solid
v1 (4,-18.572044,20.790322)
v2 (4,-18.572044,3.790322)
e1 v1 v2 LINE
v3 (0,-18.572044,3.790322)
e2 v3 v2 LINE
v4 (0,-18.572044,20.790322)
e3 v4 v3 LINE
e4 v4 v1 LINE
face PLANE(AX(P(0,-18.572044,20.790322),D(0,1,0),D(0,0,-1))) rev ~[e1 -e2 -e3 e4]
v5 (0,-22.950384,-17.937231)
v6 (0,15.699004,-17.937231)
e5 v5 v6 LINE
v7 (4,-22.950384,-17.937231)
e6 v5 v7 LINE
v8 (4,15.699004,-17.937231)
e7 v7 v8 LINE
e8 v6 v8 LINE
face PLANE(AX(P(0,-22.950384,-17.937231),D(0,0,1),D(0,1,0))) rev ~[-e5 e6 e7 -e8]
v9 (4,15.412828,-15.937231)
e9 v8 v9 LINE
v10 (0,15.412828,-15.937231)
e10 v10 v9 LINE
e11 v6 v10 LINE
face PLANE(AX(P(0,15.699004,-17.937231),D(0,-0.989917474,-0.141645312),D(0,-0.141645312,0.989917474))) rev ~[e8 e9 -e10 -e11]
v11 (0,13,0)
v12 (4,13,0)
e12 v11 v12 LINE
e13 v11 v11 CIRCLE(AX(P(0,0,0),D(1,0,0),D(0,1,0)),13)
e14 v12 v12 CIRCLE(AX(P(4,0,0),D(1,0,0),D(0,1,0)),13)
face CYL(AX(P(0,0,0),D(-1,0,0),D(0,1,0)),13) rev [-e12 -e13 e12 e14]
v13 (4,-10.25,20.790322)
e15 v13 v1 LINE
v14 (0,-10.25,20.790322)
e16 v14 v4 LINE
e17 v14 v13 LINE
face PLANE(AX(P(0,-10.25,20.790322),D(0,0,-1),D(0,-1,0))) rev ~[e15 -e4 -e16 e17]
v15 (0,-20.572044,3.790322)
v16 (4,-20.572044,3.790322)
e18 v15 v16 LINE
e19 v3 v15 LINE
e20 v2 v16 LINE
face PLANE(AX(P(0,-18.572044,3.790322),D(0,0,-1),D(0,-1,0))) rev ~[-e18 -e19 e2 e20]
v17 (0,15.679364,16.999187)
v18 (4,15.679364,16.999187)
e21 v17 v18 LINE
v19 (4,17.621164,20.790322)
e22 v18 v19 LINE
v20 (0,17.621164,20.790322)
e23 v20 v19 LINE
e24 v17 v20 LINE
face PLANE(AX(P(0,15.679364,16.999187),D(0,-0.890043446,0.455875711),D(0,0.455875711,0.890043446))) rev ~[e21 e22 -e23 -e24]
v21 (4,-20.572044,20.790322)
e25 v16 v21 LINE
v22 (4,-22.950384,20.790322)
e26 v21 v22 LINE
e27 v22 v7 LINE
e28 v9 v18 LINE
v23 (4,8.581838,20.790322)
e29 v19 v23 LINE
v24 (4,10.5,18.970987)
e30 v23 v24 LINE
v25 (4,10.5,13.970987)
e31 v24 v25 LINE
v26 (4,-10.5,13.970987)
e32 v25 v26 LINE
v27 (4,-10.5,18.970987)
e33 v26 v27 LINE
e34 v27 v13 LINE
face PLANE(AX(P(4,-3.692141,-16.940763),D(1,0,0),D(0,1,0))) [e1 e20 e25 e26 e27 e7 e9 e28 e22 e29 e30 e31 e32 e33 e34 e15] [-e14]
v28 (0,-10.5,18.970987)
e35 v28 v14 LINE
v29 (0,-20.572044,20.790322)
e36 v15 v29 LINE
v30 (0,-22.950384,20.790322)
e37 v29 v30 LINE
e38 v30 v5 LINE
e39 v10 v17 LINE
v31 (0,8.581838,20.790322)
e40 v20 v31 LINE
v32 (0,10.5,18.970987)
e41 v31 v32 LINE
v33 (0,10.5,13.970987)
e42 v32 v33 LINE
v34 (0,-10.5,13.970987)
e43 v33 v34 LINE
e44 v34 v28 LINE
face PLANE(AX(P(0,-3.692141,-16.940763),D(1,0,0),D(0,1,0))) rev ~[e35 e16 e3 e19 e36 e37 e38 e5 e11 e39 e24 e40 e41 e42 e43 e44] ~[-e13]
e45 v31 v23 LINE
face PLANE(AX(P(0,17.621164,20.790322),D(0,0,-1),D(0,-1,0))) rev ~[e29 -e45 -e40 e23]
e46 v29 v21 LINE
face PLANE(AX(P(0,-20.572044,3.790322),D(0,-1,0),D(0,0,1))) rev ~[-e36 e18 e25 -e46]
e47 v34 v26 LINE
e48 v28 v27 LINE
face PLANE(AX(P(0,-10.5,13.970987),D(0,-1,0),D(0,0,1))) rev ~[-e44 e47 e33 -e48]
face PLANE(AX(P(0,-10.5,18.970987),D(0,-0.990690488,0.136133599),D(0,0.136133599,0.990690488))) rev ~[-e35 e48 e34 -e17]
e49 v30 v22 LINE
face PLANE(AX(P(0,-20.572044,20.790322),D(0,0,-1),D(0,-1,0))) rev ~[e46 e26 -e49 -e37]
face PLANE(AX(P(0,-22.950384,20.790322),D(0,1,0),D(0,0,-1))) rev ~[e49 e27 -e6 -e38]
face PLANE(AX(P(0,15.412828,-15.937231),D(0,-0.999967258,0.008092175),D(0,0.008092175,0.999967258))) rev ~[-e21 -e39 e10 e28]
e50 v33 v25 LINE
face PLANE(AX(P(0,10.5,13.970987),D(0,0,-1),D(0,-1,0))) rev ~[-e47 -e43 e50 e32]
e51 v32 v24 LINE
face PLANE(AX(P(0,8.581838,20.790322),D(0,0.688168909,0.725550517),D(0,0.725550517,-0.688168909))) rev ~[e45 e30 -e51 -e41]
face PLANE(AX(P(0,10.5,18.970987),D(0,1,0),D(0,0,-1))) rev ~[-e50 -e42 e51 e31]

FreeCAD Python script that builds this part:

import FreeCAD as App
import Part
import Sketcher

V = App.Vector
Q = App.Units.Quantity


def add_polygon(sketch, points):
    """Adds a closed chain of lines whose ends are joined by coincident constraints."""
    first, n = sketch.GeometryCount, len(points)
    for a, b in zip(points, points[1:] + points[:1]):
        sketch.addGeometry(Part.LineSegment(App.Vector(*a, 0), App.Vector(*b, 0)), False)
    for i in range(n):
        sketch.addConstraint(Sketcher.Constraint("Coincident", first + i, 2, first + (i + 1) % n, 1))

doc = App.newDocument("Part")
params = doc.addObject("Spreadsheet::Sheet", "Params")
for row, (alias, value) in enumerate([
    ("sketch1_diameter", "26 mm"),
    ("sketch1_width", "21 mm"),
    ("sketch1_width2", "2 mm"),
    ("sketch1_height", "5 mm"),
    ("sketch1_height2", "17 mm"),
    ("pad1_length", "4 mm"),
], start=1):
    params.set(f"A{row}", alias)
    params.set(f"B{row}", "=" + value)
    params.setAlias(f"B{row}", alias)

body = doc.addObject("PartDesign::Body", "Body")

# Sketch on YZ plane
sketch1 = doc.addObject("Sketcher::SketchObject", "Sketch")
body.addObject(sketch1)
sketch1.AttachmentSupport = (doc.YZ_Plane, [""])
sketch1.MapMode = "FlatFace"
add_polygon(sketch1, [(-23, -17.9), (15.7, -17.9), (15.4, -15.9), (15.7, 17), (17.6, 20.8), (8.6, 20.8), (10.5, 19), (10.5, 14), (-10.5, 14), (-10.5, 19), (-10.2, 20.8), (-18.6, 20.8), (-18.6, 3.8), (-20.6, 3.8), (-20.6, 20.8), (-23, 20.8)])  # lines 0-15
sketch1.addGeometry(Part.Circle(V(0, 0, 0), V(0, 0, 1), 13), False)  # 16
sketch1.addConstraint(Sketcher.Constraint("Horizontal", 0))
sketch1.addConstraint(Sketcher.Constraint("Horizontal", 4))
sketch1.addConstraint(Sketcher.Constraint("Vertical", 6))
sketch1.addConstraint(Sketcher.Constraint("Horizontal", 7))
sketch1.addConstraint(Sketcher.Constraint("Vertical", 8))
sketch1.addConstraint(Sketcher.Constraint("Horizontal", 10))
sketch1.addConstraint(Sketcher.Constraint("Vertical", 11))
sketch1.addConstraint(Sketcher.Constraint("Horizontal", 12))
sketch1.addConstraint(Sketcher.Constraint("Vertical", 13))
sketch1.addConstraint(Sketcher.Constraint("Horizontal", 14))
sketch1.addConstraint(Sketcher.Constraint("Vertical", 15))
sketch1.addConstraint(Sketcher.Constraint("Coincident", 16, 3, -1, 1))
sketch1.addConstraint(Sketcher.Constraint("Symmetric", 5, 2, 8, 2, -2))
sketch1.addConstraint(Sketcher.Constraint("Horizontal", 4, 2, 9, 2))
sketch1.addConstraint(Sketcher.Constraint("Horizontal", 10, 2, 13, 2))
sketch1.addConstraint(Sketcher.Constraint("Diameter", 16, Q("26 mm")))
sketch1.addConstraint(Sketcher.Constraint("DistanceX", 7, 2, 7, 1, Q("21 mm")))
sketch1.addConstraint(Sketcher.Constraint("DistanceX", 12, 2, 12, 1, Q("2 mm")))
sketch1.addConstraint(Sketcher.Constraint("DistanceY", 6, 2, 6, 1, Q("5 mm")))
sketch1.addConstraint(Sketcher.Constraint("DistanceY", 11, 2, 11, 1, Q("17 mm")))
sketch1.addConstraint(Sketcher.Constraint("DistanceY", 0, 2, 1, 2, Q("2 mm")))
sketch1.addConstraint(Sketcher.Constraint("DistanceX", 9, 2, -1, 1, Q("10.25 mm")))
sketch1.addConstraint(Sketcher.Constraint("DistanceX", 0, 1, 0, 2, Q("38.649388 mm")))
sketch1.addConstraint(Sketcher.Constraint("DistanceX", 14, 2, 14, 1, Q("2.37834 mm")))
sketch1.addConstraint(Sketcher.Constraint("DistanceX", 2, 2, 3, 2, Q("1.9418 mm")))
sketch1.addConstraint(Sketcher.Constraint("DistanceY", 2, 2, 5, 2, Q("1.9718 mm")))
sketch1.addConstraint(Sketcher.Constraint("Distance", 1, Q("2.02037 mm")))
sketch1.addConstraint(Sketcher.Constraint("Distance", 9, Q("1.836431 mm")))
sketch1.addConstraint(Sketcher.Constraint("DistanceX", 4, 2, 4, 1, Q("9.039326 mm")))
sketch1.addConstraint(Sketcher.Constraint("DistanceX", 10, 2, 10, 1, Q("8.322044 mm")))
sketch1.addConstraint(Sketcher.Constraint("DistanceY", 15, 2, 15, 1, Q("38.727553 mm")))
sketch1.addConstraint(Sketcher.Constraint("DistanceY", 0, 2, -1, 1, Q("17.937231 mm")))
sketch1.addConstraint(Sketcher.Constraint("DistanceX", 2, 2, 0, 2, Q("0.01964 mm")))
sketch1.setExpression("Constraints[31]", "Params.sketch1_diameter")
sketch1.setExpression("Constraints[32]", "Params.sketch1_width")
sketch1.setExpression("Constraints[33]", "Params.sketch1_width2")
sketch1.setExpression("Constraints[34]", "Params.sketch1_height")
sketch1.setExpression("Constraints[35]", "Params.sketch1_height2")
pad1 = doc.addObject("PartDesign::Pad", "Pad")
body.addObject(pad1)
pad1.Profile = sketch1
pad1.setExpression("Length", "Params.pad1_length")

doc.recompute()
